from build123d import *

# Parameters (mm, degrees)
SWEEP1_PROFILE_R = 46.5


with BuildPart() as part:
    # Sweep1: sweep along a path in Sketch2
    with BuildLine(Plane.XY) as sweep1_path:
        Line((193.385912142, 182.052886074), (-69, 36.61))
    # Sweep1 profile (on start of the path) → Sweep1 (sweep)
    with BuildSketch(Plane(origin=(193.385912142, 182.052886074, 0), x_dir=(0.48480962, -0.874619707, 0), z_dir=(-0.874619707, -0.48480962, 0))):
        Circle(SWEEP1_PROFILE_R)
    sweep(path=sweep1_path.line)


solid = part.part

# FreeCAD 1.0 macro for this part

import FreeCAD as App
import Part
import Sketcher
Q = App.Units.Quantity

doc = App.newDocument("Part")
body = doc.addObject("PartDesign::Body", "Body")

sketch1 = doc.addObject("Sketcher::SketchObject", "Sketch")
body.addObject(sketch1)
sketch1.Placement = App.Placement(App.Vector(193.385912, 182.052886, 0), App.Rotation(App.Vector(0.48480962, -0.874619707, 0), App.Vector(0, 0, 1), App.Vector(-0.874619707, -0.48480962, 0), "ZXY"))
sketch1.addGeometry(Part.Circle(App.Vector(0, 0, 0), App.Vector(0, 0, 1), 46), False)
sketch1.addConstraint([
    Sketcher.Constraint("Coincident", 0, 3, -1, 1),
    Sketcher.Constraint("Diameter", 0, Q("93 mm")),
])

sketch2 = doc.addObject("Sketcher::SketchObject", "Sketch001")
body.addObject(sketch2)
sketch2.Placement = App.Placement(App.Vector(-31.741306, 57.262831, 0), App.Rotation(App.Vector(-0.874619707, -0.48480962, 0), App.Vector(0, 0, 1), App.Vector(-0.48480962, 0.874619707, 0), "ZXY"))
sketch2.addGeometry(Part.LineSegment(App.Vector(-257, 0, 0), App.Vector(43, 0, 0)), False)
sketch2.addConstraint([
    Sketcher.Constraint("Horizontal", 0),
    Sketcher.Constraint("PointOnObject", 0, 1, -1),
    Sketcher.Constraint("DistanceX", 0, 1, 0, 2, Q("300 mm")),
    Sketcher.Constraint("DistanceX", 0, 1, -1, 1, Q("257.40012 mm")),
])
doc.recompute()

additivepipe = doc.addObject("PartDesign::AdditivePipe", "AdditivePipe")
body.addObject(additivepipe)
additivepipe.Profile = sketch1
additivepipe.Spine = (sketch2, ["Edge1"])

doc.recompute()
